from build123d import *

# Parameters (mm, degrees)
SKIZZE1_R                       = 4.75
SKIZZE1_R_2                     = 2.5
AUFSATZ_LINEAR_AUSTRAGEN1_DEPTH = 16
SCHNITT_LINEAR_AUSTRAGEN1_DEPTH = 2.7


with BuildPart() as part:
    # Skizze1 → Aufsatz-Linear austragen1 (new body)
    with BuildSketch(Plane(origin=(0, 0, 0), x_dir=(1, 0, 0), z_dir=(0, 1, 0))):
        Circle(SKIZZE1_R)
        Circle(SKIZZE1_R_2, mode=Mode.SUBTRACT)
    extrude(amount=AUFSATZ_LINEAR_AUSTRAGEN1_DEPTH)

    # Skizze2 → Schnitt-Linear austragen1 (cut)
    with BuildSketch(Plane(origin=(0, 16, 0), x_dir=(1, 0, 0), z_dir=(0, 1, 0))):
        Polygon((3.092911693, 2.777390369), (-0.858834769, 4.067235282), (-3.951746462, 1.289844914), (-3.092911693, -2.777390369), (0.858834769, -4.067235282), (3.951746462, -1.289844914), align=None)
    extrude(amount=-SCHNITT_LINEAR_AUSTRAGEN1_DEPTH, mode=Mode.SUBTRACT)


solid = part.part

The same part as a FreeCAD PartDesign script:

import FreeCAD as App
import Part
import Sketcher

doc = App.newDocument("Part")
body = doc.addObject("PartDesign::Body", "Body")

# Sketch on XZ plane
sketch1 = body.newObject("Sketcher::SketchObject", "Sketch")
sketch1.AttachmentSupport = (doc.getObject("XZ_Plane"), [""])
sketch1.MapMode = "FlatFace"
sketch1.addGeometry(Part.Circle(App.Vector(0, 0, 0), App.Vector(0, 0, 1), 4.8), False)
sketch1.addGeometry(Part.Circle(App.Vector(0, 0, 0), App.Vector(0, 0, 1), 2.5), False)
sketch1.addConstraint(Sketcher.Constraint("Coincident", 0, 3, -1, 1))
sketch1.addConstraint(Sketcher.Constraint("Coincident", 1, 3, -1, 1))
sketch1.addConstraint(Sketcher.Constraint("Diameter", 1, 5.0))
sketch1.addConstraint(Sketcher.Constraint("Diameter", 0, 9.5))
pad1 = body.newObject("PartDesign::Pad", "Pad")
pad1.Profile = sketch1
pad1.Length = 16
pad1.Reversed = True

# Sketch on XZ plane
sketch2 = body.newObject("Sketcher::SketchObject", "Sketch001")
sketch2.AttachmentSupport = (doc.getObject("XZ_Plane"), [""])
sketch2.MapMode = "FlatFace"
sketch2.AttachmentOffset = App.Placement(App.Vector(0, 0, -16), App.Rotation())
sketch2.addGeometry(Part.LineSegment(App.Vector(3.1, -2.8, 0), App.Vector(-0.9, -4.1, 0)), False)
sketch2.addGeometry(Part.LineSegment(App.Vector(-0.9, -4.1, 0), App.Vector(-4, -1.3, 0)), False)
sketch2.addGeometry(Part.LineSegment(App.Vector(-4, -1.3, 0), App.Vector(-3.1, 2.8, 0)), False)
sketch2.addGeometry(Part.LineSegment(App.Vector(-3.1, 2.8, 0), App.Vector(0.9, 4.1, 0)), False)
sketch2.addGeometry(Part.LineSegment(App.Vector(0.9, 4.1, 0), App.Vector(4, 1.3, 0)), False)
sketch2.addGeometry(Part.LineSegment(App.Vector(4, 1.3, 0), App.Vector(3.1, -2.8, 0)), False)
sketch2.addConstraint(Sketcher.Constraint("Coincident", 0, 2, 1, 1))
sketch2.addConstraint(Sketcher.Constraint("Coincident", 1, 2, 2, 1))
sketch2.addConstraint(Sketcher.Constraint("Coincident", 2, 2, 3, 1))
sketch2.addConstraint(Sketcher.Constraint("Coincident", 3, 2, 4, 1))
sketch2.addConstraint(Sketcher.Constraint("Coincident", 4, 2, 5, 1))
sketch2.addConstraint(Sketcher.Constraint("Coincident", 5, 2, 0, 1))
sketch2.addConstraint(Sketcher.Constraint("Symmetric", 0, 2, 3, 2, -1, 1))
sketch2.addConstraint(Sketcher.Constraint("Symmetric", 1, 2, 4, 2, -1, 1))
sketch2.addConstraint(Sketcher.Constraint("Symmetric", 2, 2, 5, 2, -1, 1))
sketch2.addConstraint(Sketcher.Constraint("Equal", 0, 1))
sketch2.addConstraint(Sketcher.Constraint("Equal", 1, 2))
sketch2.addConstraint(Sketcher.Constraint("Distance", 0, 4.156922))
sketch2.addConstraint(Sketcher.Constraint("DistanceX", 2, 2, -1, 1, 3.092912))
sketch2.addConstraint(Sketcher.Constraint("DistanceY", -1, 1, 2, 2, 2.77739))
sketch2.addConstraint(Sketcher.Constraint("DistanceX", 1, 2, 0, 2, 3.092912))
pocket1 = body.newObject("PartDesign::Pocket", "Pocket")
pocket1.Profile = sketch2
pocket1.Length = 2.7
pocket1.Reversed = True

doc.recompute()
